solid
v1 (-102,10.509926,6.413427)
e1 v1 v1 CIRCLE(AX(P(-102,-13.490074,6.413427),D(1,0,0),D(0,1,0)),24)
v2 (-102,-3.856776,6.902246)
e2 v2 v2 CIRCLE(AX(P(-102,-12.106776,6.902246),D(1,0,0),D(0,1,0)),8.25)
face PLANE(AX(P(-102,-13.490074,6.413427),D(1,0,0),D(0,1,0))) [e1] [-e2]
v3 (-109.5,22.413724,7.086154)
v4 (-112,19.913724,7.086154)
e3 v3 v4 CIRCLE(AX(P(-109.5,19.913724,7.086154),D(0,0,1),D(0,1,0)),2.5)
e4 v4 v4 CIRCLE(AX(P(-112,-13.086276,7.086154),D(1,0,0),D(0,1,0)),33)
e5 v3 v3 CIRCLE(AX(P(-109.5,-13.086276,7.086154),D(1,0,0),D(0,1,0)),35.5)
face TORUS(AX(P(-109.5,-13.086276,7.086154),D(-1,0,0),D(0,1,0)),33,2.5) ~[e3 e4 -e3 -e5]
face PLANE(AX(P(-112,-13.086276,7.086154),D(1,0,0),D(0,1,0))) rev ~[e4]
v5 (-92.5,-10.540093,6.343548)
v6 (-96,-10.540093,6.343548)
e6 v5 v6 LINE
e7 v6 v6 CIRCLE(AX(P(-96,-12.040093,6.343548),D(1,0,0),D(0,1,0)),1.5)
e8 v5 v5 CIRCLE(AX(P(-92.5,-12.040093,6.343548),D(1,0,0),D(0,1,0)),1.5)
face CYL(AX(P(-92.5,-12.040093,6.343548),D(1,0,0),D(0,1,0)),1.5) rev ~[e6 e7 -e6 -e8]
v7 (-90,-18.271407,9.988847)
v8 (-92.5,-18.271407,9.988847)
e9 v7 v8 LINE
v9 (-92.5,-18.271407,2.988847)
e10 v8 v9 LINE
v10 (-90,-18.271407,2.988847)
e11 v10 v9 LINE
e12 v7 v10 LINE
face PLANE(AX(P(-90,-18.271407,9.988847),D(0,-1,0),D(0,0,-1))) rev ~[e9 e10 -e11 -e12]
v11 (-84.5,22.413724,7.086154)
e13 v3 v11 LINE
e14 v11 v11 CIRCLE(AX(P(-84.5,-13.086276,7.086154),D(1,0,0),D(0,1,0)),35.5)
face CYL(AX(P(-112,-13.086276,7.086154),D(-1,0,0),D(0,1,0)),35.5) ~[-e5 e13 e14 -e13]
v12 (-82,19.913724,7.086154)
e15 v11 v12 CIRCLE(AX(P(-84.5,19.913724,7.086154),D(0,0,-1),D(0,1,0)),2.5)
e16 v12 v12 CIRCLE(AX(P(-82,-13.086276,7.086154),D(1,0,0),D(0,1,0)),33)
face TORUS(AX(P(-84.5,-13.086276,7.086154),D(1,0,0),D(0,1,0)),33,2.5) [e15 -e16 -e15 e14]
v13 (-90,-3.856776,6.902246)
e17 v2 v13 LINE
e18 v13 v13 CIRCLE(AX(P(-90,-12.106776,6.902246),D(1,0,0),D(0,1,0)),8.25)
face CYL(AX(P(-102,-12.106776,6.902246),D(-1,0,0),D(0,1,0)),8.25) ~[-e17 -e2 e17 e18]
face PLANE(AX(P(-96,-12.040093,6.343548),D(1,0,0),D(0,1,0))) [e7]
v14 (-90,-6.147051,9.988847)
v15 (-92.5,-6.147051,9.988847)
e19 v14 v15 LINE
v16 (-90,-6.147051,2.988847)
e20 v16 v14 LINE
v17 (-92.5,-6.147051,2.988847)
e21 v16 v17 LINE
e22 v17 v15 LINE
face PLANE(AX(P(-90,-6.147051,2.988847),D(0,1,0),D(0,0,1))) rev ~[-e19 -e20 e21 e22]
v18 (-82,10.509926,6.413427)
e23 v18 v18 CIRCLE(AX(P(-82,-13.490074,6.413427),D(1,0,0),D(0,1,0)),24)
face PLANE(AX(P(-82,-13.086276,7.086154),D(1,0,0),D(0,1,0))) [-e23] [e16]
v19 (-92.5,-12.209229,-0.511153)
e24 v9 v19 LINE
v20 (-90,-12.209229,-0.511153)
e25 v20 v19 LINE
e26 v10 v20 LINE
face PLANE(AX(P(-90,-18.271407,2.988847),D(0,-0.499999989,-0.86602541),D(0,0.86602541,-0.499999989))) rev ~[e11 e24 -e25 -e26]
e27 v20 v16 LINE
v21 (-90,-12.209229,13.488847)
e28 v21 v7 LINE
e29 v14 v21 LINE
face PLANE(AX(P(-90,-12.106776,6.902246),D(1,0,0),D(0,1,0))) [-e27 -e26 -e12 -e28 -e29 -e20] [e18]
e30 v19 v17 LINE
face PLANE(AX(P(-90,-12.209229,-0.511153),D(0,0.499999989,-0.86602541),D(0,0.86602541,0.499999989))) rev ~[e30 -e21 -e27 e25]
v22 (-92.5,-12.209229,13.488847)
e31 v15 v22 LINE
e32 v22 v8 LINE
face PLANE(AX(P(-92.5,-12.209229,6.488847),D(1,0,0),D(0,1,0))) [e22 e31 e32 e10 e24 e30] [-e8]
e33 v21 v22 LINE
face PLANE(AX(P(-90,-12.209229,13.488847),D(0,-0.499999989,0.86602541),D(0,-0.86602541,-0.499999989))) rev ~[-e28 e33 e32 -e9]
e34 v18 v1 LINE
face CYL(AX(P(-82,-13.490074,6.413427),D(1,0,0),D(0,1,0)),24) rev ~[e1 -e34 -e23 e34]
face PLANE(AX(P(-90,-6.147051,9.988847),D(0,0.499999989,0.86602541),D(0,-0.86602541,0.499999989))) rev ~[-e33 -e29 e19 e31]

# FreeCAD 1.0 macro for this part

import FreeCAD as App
import Part
import Sketcher
Q = App.Units.Quantity


def edges_at(feature, points):
    """Names of the edges that pass closest to the given points."""
    edges = feature.Shape.Edges
    near = lambda p: min(range(len(edges)), key=lambda i: edges[i].distToShape(Part.Vertex(*p))[0])
    return sorted({f"Edge{near(p) + 1}" for p in points})


def add_polygon(sketch, points):
    """Adds a closed chain of lines whose ends are joined by coincident constraints."""
    first, n = sketch.GeometryCount, len(points)
    for a, b in zip(points, points[1:] + points[:1]):
        sketch.addGeometry(Part.LineSegment(App.Vector(*a, 0), App.Vector(*b, 0)), False)
    for i in range(n):
        sketch.addConstraint(Sketcher.Constraint("Coincident", first + i, 2, first + (i + 1) % n, 1))

doc = App.newDocument("Part")
body = doc.addObject("PartDesign::Body", "Body")

# Sketch on YZ plane
sketch1 = doc.addObject("Sketcher::SketchObject", "Sketch")
body.addObject(sketch1)
sketch1.AttachmentSupport = (doc.YZ_Plane, [""])
sketch1.MapMode = "FlatFace"
sketch1.addGeometry(Part.Circle(App.Vector(-2, 2, 0), App.Vector(0, 0, 1), 36), False)
sketch1.addConstraint(Sketcher.Constraint("Diameter", 0, Q("71 mm")))
sketch1.addConstraint(Sketcher.Constraint("DistanceX", 0, 3, -1, 1, Q("2.086276 mm")))
sketch1.addConstraint(Sketcher.Constraint("DistanceY", -1, 1, 0, 3, Q("2.086154 mm")))
pad1 = doc.addObject("PartDesign::Pad", "Pad")
body.addObject(pad1)
pad1.Profile = sketch1
pad1.Length = 30
doc.recompute()

fillet = doc.addObject("PartDesign::Fillet", "Fillet")
body.addObject(fillet)
fillet.Base = (pad1, edges_at(pad1, [(30, -37.586, 2.086)]))
fillet.Radius = 2.5
doc.recompute()

fillet2 = doc.addObject("PartDesign::Fillet", "Fillet001")
body.addObject(fillet2)
fillet2.Base = (fillet, edges_at(fillet, [(0, -37.586, 2.086)]))
fillet2.Radius = 2.5

# Sketch on YZ plane
sketch2 = doc.addObject("Sketcher::SketchObject", "Sketch001")
body.addObject(sketch2)
sketch2.AttachmentSupport = (doc.YZ_Plane, [""])
sketch2.MapMode = "FlatFace"
sketch2.AttachmentOffset = App.Placement(App.Vector(0, 0, 30), App.Rotation())
sketch2.addGeometry(Part.Circle(App.Vector(-2, 1, 0), App.Vector(0, 0, 1), 24), False)
sketch2.addConstraint(Sketcher.Constraint("Diameter", 0, Q("48 mm")))
sketch2.addConstraint(Sketcher.Constraint("DistanceX", 0, 3, -1, 1, Q("2.490074 mm")))
sketch2.addConstraint(Sketcher.Constraint("DistanceY", -1, 1, 0, 3, Q("1.413427 mm")))
pocket1 = doc.addObject("PartDesign::Pocket", "Pocket")
body.addObject(pocket1)
pocket1.Profile = sketch2
pocket1.Length = 20

# Sketch on YZ plane
sketch3 = doc.addObject("Sketcher::SketchObject", "Sketch002")
body.addObject(sketch3)
sketch3.AttachmentSupport = (doc.YZ_Plane, [""])
sketch3.MapMode = "FlatFace"
sketch3.AttachmentOffset = App.Placement(App.Vector(0, 0, 10), App.Rotation())
sketch3.addGeometry(Part.Circle(App.Vector(-1, 2, 0), App.Vector(0, 0, 1), 8), False)
sketch3.addConstraint(Sketcher.Constraint("Diameter", 0, Q("16.5 mm")))
sketch3.addConstraint(Sketcher.Constraint("DistanceX", 0, 3, -1, 1, Q("1.106776 mm")))
sketch3.addConstraint(Sketcher.Constraint("DistanceY", -1, 1, 0, 3, Q("1.902246 mm")))
pad2 = doc.addObject("PartDesign::Pad", "Pad001")
body.addObject(pad2)
pad2.Profile = sketch3
pad2.Length = 12

# Sketch on YZ plane
sketch4 = doc.addObject("Sketcher::SketchObject", "Sketch003")
body.addObject(sketch4)
sketch4.AttachmentSupport = (doc.YZ_Plane, [""])
sketch4.MapMode = "FlatFace"
sketch4.AttachmentOffset = App.Placement(App.Vector(0, 0, 22), App.Rotation())
add_polygon(sketch4, [(5, 5), (-1, 8), (-7, 5), (-7, -2), (-1, -6), (5, -2)])  # lines 0-5
sketch4.addConstraint(Sketcher.Constraint("Vertical", 2))
sketch4.addConstraint(Sketcher.Constraint("Vertical", 5))
sketch4.addConstraint(Sketcher.Constraint("Parallel", 0, 3))
sketch4.addConstraint(Sketcher.Constraint("Parallel", 1, 4))
sketch4.addConstraint(Sketcher.Constraint("Horizontal", 2, 2, 4, 2))
sketch4.addConstraint(Sketcher.Constraint("Horizontal", 1, 2, 5, 2))
sketch4.addConstraint(Sketcher.Constraint("Vertical", 0, 2, 3, 2))
sketch4.addConstraint(Sketcher.Constraint("DistanceY", 2, 2, 2, 1, Q("7 mm")))
sketch4.addConstraint(Sketcher.Constraint("Angle", 0, Q("150.000001 deg")))
sketch4.addConstraint(Sketcher.Constraint("Distance", 0, Q("7 mm")))
sketch4.addConstraint(Sketcher.Constraint("DistanceX", 0, 2, -1, 1, Q("1.209229 mm")))
sketch4.addConstraint(Sketcher.Constraint("DistanceY", -1, 1, 0, 2, Q("8.488847 mm")))
pocket2 = doc.addObject("PartDesign::Pocket", "Pocket001")
body.addObject(pocket2)
pocket2.Profile = sketch4
pocket2.Length = 2.5

# Sketch on YZ plane
sketch5 = doc.addObject("Sketcher::SketchObject", "Sketch004")
body.addObject(sketch5)
sketch5.AttachmentSupport = (doc.YZ_Plane, [""])
sketch5.MapMode = "FlatFace"
sketch5.AttachmentOffset = App.Placement(App.Vector(0, 0, 19.5), App.Rotation())
sketch5.addGeometry(Part.Circle(App.Vector(-1, 1.3, 0), App.Vector(0, 0, 1), 1.5), False)
sketch5.addConstraint(Sketcher.Constraint("Diameter", 0, Q("3 mm")))
sketch5.addConstraint(Sketcher.Constraint("DistanceX", 0, 3, -1, 1, Q("1.040093 mm")))
sketch5.addConstraint(Sketcher.Constraint("DistanceY", -1, 1, 0, 3, Q("1.343548 mm")))
pocket3 = doc.addObject("PartDesign::Pocket", "Pocket002")
body.addObject(pocket3)
pocket3.Profile = sketch5
pocket3.Length = 3.5
body2 = doc.addObject("PartDesign::Body", "Body001")
doc.recompute()

body.Placement = App.Placement(App.Vector(-112, -11, 5), App.Rotation(App.Vector(0, 0, 1), 0))
boolean = doc.addObject("PartDesign::Boolean", "Boolean")
body2.addObject(boolean)
boolean.Type = "Fuse"
boolean.addObjects([body])

doc.recompute()
